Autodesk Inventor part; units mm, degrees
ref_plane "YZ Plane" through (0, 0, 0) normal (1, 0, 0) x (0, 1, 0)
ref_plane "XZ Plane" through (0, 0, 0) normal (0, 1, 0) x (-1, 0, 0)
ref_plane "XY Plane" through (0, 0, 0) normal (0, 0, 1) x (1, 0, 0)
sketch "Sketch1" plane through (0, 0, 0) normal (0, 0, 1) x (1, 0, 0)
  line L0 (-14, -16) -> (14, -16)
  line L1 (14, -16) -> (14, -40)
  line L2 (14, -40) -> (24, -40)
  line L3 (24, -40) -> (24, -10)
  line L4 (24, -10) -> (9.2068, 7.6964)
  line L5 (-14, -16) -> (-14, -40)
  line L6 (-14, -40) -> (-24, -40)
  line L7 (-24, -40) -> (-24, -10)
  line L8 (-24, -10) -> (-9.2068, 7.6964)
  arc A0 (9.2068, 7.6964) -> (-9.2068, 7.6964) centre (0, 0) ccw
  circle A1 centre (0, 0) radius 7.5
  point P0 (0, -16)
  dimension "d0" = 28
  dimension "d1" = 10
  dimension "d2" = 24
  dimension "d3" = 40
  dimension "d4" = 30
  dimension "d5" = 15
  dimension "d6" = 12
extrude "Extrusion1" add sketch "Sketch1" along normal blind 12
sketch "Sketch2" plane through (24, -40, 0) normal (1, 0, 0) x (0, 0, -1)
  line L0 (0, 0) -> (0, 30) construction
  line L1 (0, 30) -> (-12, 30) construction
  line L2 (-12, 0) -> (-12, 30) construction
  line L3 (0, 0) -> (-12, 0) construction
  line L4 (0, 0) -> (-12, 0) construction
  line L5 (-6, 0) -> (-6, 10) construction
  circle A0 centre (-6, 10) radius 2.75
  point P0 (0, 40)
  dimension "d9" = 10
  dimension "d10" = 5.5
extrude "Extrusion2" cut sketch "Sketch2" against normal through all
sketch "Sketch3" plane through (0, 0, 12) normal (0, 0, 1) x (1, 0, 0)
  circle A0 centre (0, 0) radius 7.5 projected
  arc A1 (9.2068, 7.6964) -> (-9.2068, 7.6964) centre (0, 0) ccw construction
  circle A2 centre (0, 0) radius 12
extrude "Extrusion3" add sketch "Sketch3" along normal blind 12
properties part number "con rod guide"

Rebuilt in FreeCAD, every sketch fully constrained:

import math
import FreeCAD as App
import Part
import Sketcher

V = App.Vector
Q = App.Units.Quantity

doc = App.newDocument("Part")
params = doc.addObject("Spreadsheet::Sheet", "Params")
for row, (alias, value) in enumerate([
    ("sketch1_diameter", "15 mm"),
    ("sketch1_radius", "12 mm"),
    ("sketch1_width", "28 mm"),
    ("sketch1_width2", "10 mm"),
    ("sketch1_height", "24 mm"),
    ("pad1_length", "12 mm"),
    ("sketch2_diameter", "5.5 mm"),
    ("sketch3_diameter", "24 mm"),
    ("sketch3_diameter2", "15 mm"),
    ("pad2_length", "12 mm"),
], start=1):
    params.set(f"A{row}", alias)
    params.set(f"B{row}", "=" + value)
    params.setAlias(f"B{row}", alias)

body = doc.addObject("PartDesign::Body", "Body")

# Sketch on XY plane
sketch1 = body.newObject("Sketcher::SketchObject", "Sketch")
sketch1.AttachmentSupport = (doc.getObject("XY_Plane"), [""])
sketch1.MapMode = "FlatFace"
sketch1.addGeometry(Part.LineSegment(V(-14, -40, 0), V(-14, -16, 0)), False)
sketch1.addGeometry(Part.LineSegment(V(-14, -16, 0), V(14, -16, 0)), False)
sketch1.addGeometry(Part.LineSegment(V(14, -16, 0), V(14, -40, 0)), False)
sketch1.addGeometry(Part.LineSegment(V(14, -40, 0), V(24, -40, 0)), False)
sketch1.addGeometry(Part.LineSegment(V(24, -40, 0), V(24, -10, 0)), False)
sketch1.addGeometry(Part.LineSegment(V(24, -10, 0), V(9, 8, 0)), False)
sketch1.addGeometry(Part.ArcOfCircle(Part.Circle(V(0, 0, 0), V(0, 0, 1), 12), math.radians(40), math.radians(140)), False)
sketch1.addGeometry(Part.LineSegment(V(-9, 8, 0), V(-24, -10, 0)), False)
sketch1.addGeometry(Part.LineSegment(V(-24, -10, 0), V(-24, -40, 0)), False)
sketch1.addGeometry(Part.LineSegment(V(-24, -40, 0), V(-14, -40, 0)), False)
sketch1.addGeometry(Part.Circle(V(0, 0, 0), V(0, 0, 1), 8), False)
sketch1.addConstraint(Sketcher.Constraint("Coincident", 0, 2, 1, 1))
sketch1.addConstraint(Sketcher.Constraint("Coincident", 1, 2, 2, 1))
sketch1.addConstraint(Sketcher.Constraint("Coincident", 2, 2, 3, 1))
sketch1.addConstraint(Sketcher.Constraint("Coincident", 3, 2, 4, 1))
sketch1.addConstraint(Sketcher.Constraint("Coincident", 4, 2, 5, 1))
sketch1.addConstraint(Sketcher.Constraint("Tangent", 5, 2, 6, 1))
sketch1.addConstraint(Sketcher.Constraint("Tangent", 6, 2, 7, 1))
sketch1.addConstraint(Sketcher.Constraint("Coincident", 7, 2, 8, 1))
sketch1.addConstraint(Sketcher.Constraint("Coincident", 8, 2, 9, 1))
sketch1.addConstraint(Sketcher.Constraint("Coincident", 9, 2, 0, 1))
sketch1.addConstraint(Sketcher.Constraint("Vertical", 0))
sketch1.addConstraint(Sketcher.Constraint("Horizontal", 1))
sketch1.addConstraint(Sketcher.Constraint("Vertical", 2))
sketch1.addConstraint(Sketcher.Constraint("Horizontal", 3))
sketch1.addConstraint(Sketcher.Constraint("Vertical", 4))
sketch1.addConstraint(Sketcher.Constraint("Vertical", 8))
sketch1.addConstraint(Sketcher.Constraint("Horizontal", 9))
sketch1.addConstraint(Sketcher.Constraint("Coincident", 6, 3, -1, 1))
sketch1.addConstraint(Sketcher.Constraint("Coincident", 10, 3, -1, 1))
sketch1.addConstraint(Sketcher.Constraint("Symmetric", 4, 2, 7, 2, -2))
sketch1.addConstraint(Sketcher.Constraint("Symmetric", 2, 2, 9, 2, -2))
sketch1.addConstraint(Sketcher.Constraint("Diameter", 10, Q("15 mm")))
sketch1.addConstraint(Sketcher.Constraint("Radius", 6, Q("12 mm")))
sketch1.addConstraint(Sketcher.Constraint("DistanceX", 1, 1, 1, 2, Q("28 mm")))
sketch1.addConstraint(Sketcher.Constraint("DistanceX", 3, 1, 3, 2, Q("10 mm")))
sketch1.addConstraint(Sketcher.Constraint("DistanceY", 0, 1, 0, 2, Q("24 mm")))
sketch1.addConstraint(Sketcher.Constraint("DistanceY", 4, 1, 4, 2, Q("30 mm")))
sketch1.addConstraint(Sketcher.Constraint("DistanceY", 2, 2, -1, 1, Q("40 mm")))
sketch1.setExpression("Constraints[21]", "Params.sketch1_diameter")
sketch1.setExpression("Constraints[22]", "Params.sketch1_radius")
sketch1.setExpression("Constraints[23]", "Params.sketch1_width")
sketch1.setExpression("Constraints[24]", "Params.sketch1_width2")
sketch1.setExpression("Constraints[25]", "Params.sketch1_height")
pad1 = body.newObject("PartDesign::Pad", "Pad")
pad1.Profile = sketch1
pad1.setExpression("Length", "Params.pad1_length")

# Sketch on YZ plane
sketch2 = body.newObject("Sketcher::SketchObject", "Sketch001")
sketch2.AttachmentSupport = (doc.getObject("YZ_Plane"), [""])
sketch2.MapMode = "FlatFace"
sketch2.AttachmentOffset = App.Placement(V(0, 0, 24), App.Rotation())
sketch2.addGeometry(Part.Circle(V(-30, 6, 0), V(0, 0, 1), 2.8), False)
sketch2.addConstraint(Sketcher.Constraint("Diameter", 0, Q("5.5 mm")))
sketch2.addConstraint(Sketcher.Constraint("DistanceX", 0, 3, -1, 1, Q("30 mm")))
sketch2.addConstraint(Sketcher.Constraint("DistanceY", -1, 1, 0, 3, Q("6 mm")))
sketch2.setExpression("Constraints[0]", "Params.sketch2_diameter")
pocket1 = body.newObject("PartDesign::Pocket", "Pocket")
pocket1.Profile = sketch2
pocket1.Type = "ThroughAll"

# Sketch on XY plane
sketch3 = body.newObject("Sketcher::SketchObject", "Sketch002")
sketch3.AttachmentSupport = (doc.getObject("XY_Plane"), [""])
sketch3.MapMode = "FlatFace"
sketch3.AttachmentOffset = App.Placement(V(0, 0, 12), App.Rotation())
sketch3.addGeometry(Part.Circle(V(0, 0, 0), V(0, 0, 1), 12), False)
sketch3.addGeometry(Part.Circle(V(0, 0, 0), V(0, 0, 1), 8), False)
sketch3.addConstraint(Sketcher.Constraint("Coincident", 0, 3, -1, 1))
sketch3.addConstraint(Sketcher.Constraint("Coincident", 1, 3, -1, 1))
sketch3.addConstraint(Sketcher.Constraint("Diameter", 0, Q("24 mm")))
sketch3.addConstraint(Sketcher.Constraint("Diameter", 1, Q("15 mm")))
sketch3.setExpression("Constraints[2]", "Params.sketch3_diameter")
sketch3.setExpression("Constraints[3]", "Params.sketch3_diameter2")
pad2 = body.newObject("PartDesign::Pad", "Pad001")
pad2.Profile = sketch3
pad2.setExpression("Length", "Params.pad2_length")

doc.recompute()
